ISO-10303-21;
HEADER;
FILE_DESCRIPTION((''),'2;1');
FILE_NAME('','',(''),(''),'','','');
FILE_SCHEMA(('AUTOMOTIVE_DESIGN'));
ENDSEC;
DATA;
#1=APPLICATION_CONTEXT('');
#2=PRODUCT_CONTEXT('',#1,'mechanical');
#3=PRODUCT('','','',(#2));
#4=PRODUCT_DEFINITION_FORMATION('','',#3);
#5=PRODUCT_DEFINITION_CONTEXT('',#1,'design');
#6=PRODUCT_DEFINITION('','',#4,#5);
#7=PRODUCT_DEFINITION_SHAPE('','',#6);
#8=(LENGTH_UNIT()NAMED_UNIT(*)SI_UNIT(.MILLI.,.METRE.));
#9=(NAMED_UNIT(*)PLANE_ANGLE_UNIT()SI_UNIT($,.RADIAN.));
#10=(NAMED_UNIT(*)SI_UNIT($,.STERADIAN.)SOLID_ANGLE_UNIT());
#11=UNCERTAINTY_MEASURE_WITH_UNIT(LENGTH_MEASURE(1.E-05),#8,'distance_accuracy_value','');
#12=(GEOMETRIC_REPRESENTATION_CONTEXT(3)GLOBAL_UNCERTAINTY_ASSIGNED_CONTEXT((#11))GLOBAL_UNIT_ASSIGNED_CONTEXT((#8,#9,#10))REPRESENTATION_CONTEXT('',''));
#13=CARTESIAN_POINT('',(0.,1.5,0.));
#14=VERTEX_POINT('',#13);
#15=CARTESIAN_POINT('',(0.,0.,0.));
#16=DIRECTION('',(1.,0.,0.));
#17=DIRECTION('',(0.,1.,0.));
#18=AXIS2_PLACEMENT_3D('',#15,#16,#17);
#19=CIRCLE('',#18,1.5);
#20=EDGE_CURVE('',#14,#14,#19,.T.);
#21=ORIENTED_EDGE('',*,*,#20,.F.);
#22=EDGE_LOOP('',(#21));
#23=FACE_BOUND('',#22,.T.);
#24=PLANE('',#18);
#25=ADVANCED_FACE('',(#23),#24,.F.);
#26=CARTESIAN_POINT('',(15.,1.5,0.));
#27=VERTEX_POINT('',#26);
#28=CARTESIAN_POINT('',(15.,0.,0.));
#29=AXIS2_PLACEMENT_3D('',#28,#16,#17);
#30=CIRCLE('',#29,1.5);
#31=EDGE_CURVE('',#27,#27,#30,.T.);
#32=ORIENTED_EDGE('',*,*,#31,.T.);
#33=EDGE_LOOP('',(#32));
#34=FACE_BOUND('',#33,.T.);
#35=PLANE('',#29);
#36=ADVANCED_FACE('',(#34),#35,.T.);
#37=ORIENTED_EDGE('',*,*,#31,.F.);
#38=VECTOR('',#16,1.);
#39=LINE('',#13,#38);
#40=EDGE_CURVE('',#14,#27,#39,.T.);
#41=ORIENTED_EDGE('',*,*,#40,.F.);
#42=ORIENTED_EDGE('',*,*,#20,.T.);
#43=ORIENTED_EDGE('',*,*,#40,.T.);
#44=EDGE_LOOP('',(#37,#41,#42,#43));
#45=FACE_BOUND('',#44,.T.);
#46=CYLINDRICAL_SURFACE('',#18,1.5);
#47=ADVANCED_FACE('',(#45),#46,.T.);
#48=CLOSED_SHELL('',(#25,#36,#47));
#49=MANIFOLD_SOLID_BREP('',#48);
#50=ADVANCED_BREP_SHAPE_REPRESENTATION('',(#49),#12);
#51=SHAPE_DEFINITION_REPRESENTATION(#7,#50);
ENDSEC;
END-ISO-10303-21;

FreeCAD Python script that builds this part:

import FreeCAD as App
import Part
import Sketcher

V = App.Vector

doc = App.newDocument("Part")
body = doc.addObject("PartDesign::Body", "Body")

sketch1 = body.newObject("Sketcher::SketchObject", "Sketch")
sketch1.AttachmentSupport = (doc.getObject("XY_Plane"), [""])
sketch1.MapMode = "FlatFace"
sketch1.addGeometry([
    Part.LineSegment(V(0, 1.5, 0), V(0, 0, 0)),
    Part.LineSegment(V(0, 0, 0), V(15, 0, 0)),
    Part.LineSegment(V(15, 0, 0), V(15, 1.5, 0)),
    Part.LineSegment(V(15, 1.5, 0), V(0, 1.5, 0)),
], False)
sketch1.addConstraint([
    Sketcher.Constraint("Coincident", 0, 2, 1, 1),
    Sketcher.Constraint("Coincident", 1, 2, 2, 1),
    Sketcher.Constraint("Coincident", 2, 2, 3, 1),
    Sketcher.Constraint("Coincident", 3, 2, 0, 1),
    Sketcher.Constraint("Vertical", 0),
    Sketcher.Constraint("Horizontal", 1),
    Sketcher.Constraint("Vertical", 2),
    Sketcher.Constraint("Horizontal", 3),
    Sketcher.Constraint("Coincident", 0, 2, -1, 1),
    Sketcher.Constraint("DistanceX", 1, 1, 1, 2, 15.0),
    Sketcher.Constraint("DistanceY", 0, 2, 0, 1, 1.5),
])
revolution = body.newObject("PartDesign::Revolution", "Revolution")
revolution.Profile = sketch1
revolution.ReferenceAxis = (sketch1, ["H_Axis"])
revolution.Angle = 360

doc.recompute()
